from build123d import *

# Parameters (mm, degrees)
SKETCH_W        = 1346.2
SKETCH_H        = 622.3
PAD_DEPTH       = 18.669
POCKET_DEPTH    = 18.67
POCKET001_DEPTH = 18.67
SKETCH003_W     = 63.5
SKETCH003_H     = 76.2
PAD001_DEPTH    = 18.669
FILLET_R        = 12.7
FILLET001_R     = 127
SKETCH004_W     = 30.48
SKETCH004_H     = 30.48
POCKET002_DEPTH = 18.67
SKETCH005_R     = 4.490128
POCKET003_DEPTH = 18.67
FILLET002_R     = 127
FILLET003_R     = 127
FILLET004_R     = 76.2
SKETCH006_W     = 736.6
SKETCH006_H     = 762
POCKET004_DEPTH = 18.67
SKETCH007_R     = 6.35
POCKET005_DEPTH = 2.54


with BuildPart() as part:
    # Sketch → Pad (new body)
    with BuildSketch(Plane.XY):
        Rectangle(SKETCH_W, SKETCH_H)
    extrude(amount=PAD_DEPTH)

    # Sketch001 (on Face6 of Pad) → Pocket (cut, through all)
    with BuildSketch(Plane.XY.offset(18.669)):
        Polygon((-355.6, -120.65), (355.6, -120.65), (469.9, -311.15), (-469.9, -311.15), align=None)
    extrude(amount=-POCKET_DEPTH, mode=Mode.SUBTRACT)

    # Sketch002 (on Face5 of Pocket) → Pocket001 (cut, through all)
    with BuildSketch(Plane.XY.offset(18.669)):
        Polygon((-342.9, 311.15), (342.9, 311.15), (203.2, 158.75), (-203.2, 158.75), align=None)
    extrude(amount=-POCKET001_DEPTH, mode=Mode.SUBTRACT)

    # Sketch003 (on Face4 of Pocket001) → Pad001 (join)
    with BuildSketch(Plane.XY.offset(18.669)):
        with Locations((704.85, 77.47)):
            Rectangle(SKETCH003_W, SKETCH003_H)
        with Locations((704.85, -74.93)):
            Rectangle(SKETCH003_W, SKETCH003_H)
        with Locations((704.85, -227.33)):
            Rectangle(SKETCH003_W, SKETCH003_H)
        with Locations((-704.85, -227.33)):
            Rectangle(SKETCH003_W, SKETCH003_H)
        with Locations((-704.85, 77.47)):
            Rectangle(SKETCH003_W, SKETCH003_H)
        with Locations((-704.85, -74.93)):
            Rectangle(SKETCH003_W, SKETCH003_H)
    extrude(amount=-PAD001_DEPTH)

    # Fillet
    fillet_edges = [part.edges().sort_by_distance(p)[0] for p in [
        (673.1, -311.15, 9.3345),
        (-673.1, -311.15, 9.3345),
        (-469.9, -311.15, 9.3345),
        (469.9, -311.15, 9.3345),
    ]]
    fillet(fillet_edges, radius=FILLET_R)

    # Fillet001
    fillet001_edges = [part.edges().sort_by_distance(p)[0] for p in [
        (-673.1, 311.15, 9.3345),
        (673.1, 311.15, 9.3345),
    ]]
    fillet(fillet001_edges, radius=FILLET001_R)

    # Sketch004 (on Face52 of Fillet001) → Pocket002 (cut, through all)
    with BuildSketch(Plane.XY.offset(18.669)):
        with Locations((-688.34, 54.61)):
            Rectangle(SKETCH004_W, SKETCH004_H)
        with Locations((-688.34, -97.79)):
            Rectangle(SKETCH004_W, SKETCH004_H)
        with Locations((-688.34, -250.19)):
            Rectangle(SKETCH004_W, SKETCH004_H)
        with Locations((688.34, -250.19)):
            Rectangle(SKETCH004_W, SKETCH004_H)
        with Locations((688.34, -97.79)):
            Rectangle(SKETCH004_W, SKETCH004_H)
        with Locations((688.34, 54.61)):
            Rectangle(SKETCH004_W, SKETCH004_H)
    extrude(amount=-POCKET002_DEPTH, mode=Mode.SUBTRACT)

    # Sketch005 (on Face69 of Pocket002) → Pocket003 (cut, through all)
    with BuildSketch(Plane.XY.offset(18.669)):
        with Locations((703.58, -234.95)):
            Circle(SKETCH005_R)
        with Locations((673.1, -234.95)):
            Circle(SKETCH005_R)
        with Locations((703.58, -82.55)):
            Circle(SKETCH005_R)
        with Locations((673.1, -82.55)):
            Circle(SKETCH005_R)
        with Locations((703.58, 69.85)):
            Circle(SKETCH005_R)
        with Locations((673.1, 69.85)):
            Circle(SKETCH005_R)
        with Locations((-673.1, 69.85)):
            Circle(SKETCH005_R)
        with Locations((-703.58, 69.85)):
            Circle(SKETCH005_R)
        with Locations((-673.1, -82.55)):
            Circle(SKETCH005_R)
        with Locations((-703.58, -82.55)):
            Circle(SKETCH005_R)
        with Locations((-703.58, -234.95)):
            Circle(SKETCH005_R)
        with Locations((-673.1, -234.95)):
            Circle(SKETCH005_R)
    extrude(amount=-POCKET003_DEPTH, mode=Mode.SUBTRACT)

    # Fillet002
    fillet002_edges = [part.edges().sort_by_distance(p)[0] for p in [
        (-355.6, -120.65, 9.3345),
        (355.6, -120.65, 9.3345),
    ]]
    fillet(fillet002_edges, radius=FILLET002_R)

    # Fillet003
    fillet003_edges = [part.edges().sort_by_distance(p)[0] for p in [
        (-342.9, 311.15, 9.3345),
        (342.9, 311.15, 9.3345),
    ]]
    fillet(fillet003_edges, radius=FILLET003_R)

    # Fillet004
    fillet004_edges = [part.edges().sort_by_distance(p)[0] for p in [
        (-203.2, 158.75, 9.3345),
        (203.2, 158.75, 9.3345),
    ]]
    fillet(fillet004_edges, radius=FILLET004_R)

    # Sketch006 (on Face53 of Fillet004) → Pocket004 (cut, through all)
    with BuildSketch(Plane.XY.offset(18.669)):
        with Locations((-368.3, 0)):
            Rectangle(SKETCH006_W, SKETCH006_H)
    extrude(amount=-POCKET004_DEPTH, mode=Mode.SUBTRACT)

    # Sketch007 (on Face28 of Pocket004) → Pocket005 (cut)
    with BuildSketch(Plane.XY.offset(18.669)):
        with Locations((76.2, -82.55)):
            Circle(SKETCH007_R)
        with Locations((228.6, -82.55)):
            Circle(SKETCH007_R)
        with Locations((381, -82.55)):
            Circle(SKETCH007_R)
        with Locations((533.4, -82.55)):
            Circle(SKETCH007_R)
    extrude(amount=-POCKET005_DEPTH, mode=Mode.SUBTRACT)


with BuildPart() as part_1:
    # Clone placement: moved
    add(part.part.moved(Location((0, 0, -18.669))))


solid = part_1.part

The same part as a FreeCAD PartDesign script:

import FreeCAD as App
import Part
import Sketcher
Q = App.Units.Quantity


def edges_at(feature, points):
    """Names of the edges that pass closest to the given points."""
    edges = feature.Shape.Edges
    near = lambda p: min(range(len(edges)), key=lambda i: edges[i].distToShape(Part.Vertex(*p))[0])
    return sorted({f"Edge{near(p) + 1}" for p in points})


def add_polygon(sketch, points):
    """Adds a closed chain of lines whose ends are joined by coincident constraints."""
    first, n = sketch.GeometryCount, len(points)
    for a, b in zip(points, points[1:] + points[:1]):
        sketch.addGeometry(Part.LineSegment(App.Vector(*a, 0), App.Vector(*b, 0)), False)
    for i in range(n):
        sketch.addConstraint(Sketcher.Constraint("Coincident", first + i, 2, first + (i + 1) % n, 1))

doc = App.newDocument("Part")
body = doc.addObject("PartDesign::Body", "Body")

# Sketch on XY plane
sketch1 = body.newObject("Sketcher::SketchObject", "Sketch")
sketch1.AttachmentSupport = (doc.getObject("XY_Plane"), [""])
sketch1.MapMode = "FlatFace"
add_polygon(sketch1, [(-673, 311), (-673, -311), (673, -311), (673, 311)])  # lines 0-3
sketch1.addConstraint([
    Sketcher.Constraint("Vertical", 0),
    Sketcher.Constraint("Horizontal", 1),
    Sketcher.Constraint("Vertical", 2),
    Sketcher.Constraint("Horizontal", 3),
    Sketcher.Constraint("Symmetric", 0, 2, 2, 2, -1, 1),
    Sketcher.Constraint("DistanceX", 1, 1, 1, 2, Q("53 in")),
    Sketcher.Constraint("DistanceY", 0, 2, 0, 1, Q("24.5 in")),
])
pad1 = body.newObject("PartDesign::Pad", "Pad")
pad1.Profile = sketch1
pad1.Length = Q("0.735 in")

# Sketch on XY plane
sketch2 = body.newObject("Sketcher::SketchObject", "Sketch001")
sketch2.AttachmentSupport = (doc.getObject("XY_Plane"), [""])
sketch2.MapMode = "FlatFace"
sketch2.AttachmentOffset = App.Placement(App.Vector(0, 0, 0.735 * 25.4), App.Rotation())
add_polygon(sketch2, [(356, -121), (-356, -121), (-470, -311), (470, -311)])  # lines 0-3
sketch2.addConstraint([
    Sketcher.Constraint("Horizontal", 0),
    Sketcher.Constraint("Horizontal", 2),
    Sketcher.Constraint("Equal", 1, 3),
    Sketcher.Constraint("DistanceX", 0, 2, 0, 1, Q("28 in")),
    Sketcher.Constraint("DistanceX", 2, 1, 2, 2, Q("37 in")),
    Sketcher.Constraint("DistanceX", 0, 2, -1, 1, Q("14 in")),
    Sketcher.Constraint("DistanceY", 1, 2, 0, 2, Q("7.5 in")),
    Sketcher.Constraint("DistanceY", 0, 2, -1, 1, Q("4.75 in")),
])
pocket1 = body.newObject("PartDesign::Pocket", "Pocket")
pocket1.Profile = sketch2
pocket1.Type = "ThroughAll"

# Sketch on XY plane
sketch3 = body.newObject("Sketcher::SketchObject", "Sketch002")
sketch3.AttachmentSupport = (doc.getObject("XY_Plane"), [""])
sketch3.MapMode = "FlatFace"
sketch3.AttachmentOffset = App.Placement(App.Vector(0, 0, 0.735 * 25.4), App.Rotation())
add_polygon(sketch3, [(343, 311), (-343, 311), (-203, 159), (203, 159)])  # lines 0-3
sketch3.addConstraint([
    Sketcher.Constraint("Horizontal", 0),
    Sketcher.Constraint("Horizontal", 2),
    Sketcher.Constraint("Equal", 1, 3),
    Sketcher.Constraint("DistanceX", 0, 2, 0, 1, Q("27 in")),
    Sketcher.Constraint("DistanceX", 2, 1, 2, 2, Q("16 in")),
    Sketcher.Constraint("DistanceX", 1, 2, -1, 1, Q("8 in")),
    Sketcher.Constraint("DistanceY", 1, 2, 0, 2, Q("6 in")),
    Sketcher.Constraint("DistanceY", -1, 1, 0, 2, Q("12.25 in")),
])
pocket2 = body.newObject("PartDesign::Pocket", "Pocket001")
pocket2.Profile = sketch3
pocket2.Type = "ThroughAll"

# Sketch on XY plane
sketch4 = body.newObject("Sketcher::SketchObject", "Sketch003")
sketch4.AttachmentSupport = (doc.getObject("XY_Plane"), [""])
sketch4.MapMode = "FlatFace"
sketch4.AttachmentOffset = App.Placement(App.Vector(0, 0, 0.735 * 25.4), App.Rotation())
add_polygon(sketch4, [(673, 116), (673, 39), (737, 39), (737, 116)])  # lines 0-3
add_polygon(sketch4, [(673, -37), (673, -113), (737, -113), (737, -37)])  # lines 4-7
add_polygon(sketch4, [(673, -189), (673, -265), (737, -265), (737, -189)])  # lines 8-11
add_polygon(sketch4, [(-737, -189), (-737, -265), (-673, -265), (-673, -189)])  # lines 12-15
add_polygon(sketch4, [(-737, 116), (-737, 39), (-673, 39), (-673, 116)])  # lines 16-19
add_polygon(sketch4, [(-737, -37), (-737, -113), (-673, -113), (-673, -37)])  # lines 20-23
sketch4.addConstraint([
    Sketcher.Constraint("Vertical", 0),
    Sketcher.Constraint("Horizontal", 1),
    Sketcher.Constraint("Vertical", 2),
    Sketcher.Constraint("Horizontal", 3),
    Sketcher.Constraint("Vertical", 4),
    Sketcher.Constraint("Horizontal", 5),
    Sketcher.Constraint("Vertical", 6),
    Sketcher.Constraint("Horizontal", 7),
    Sketcher.Constraint("Vertical", 8),
    Sketcher.Constraint("Horizontal", 9),
    Sketcher.Constraint("Vertical", 10),
    Sketcher.Constraint("Horizontal", 11),
    Sketcher.Constraint("Vertical", 12),
    Sketcher.Constraint("Horizontal", 13),
    Sketcher.Constraint("Vertical", 14),
    Sketcher.Constraint("Horizontal", 15),
    Sketcher.Constraint("Vertical", 16),
    Sketcher.Constraint("Horizontal", 17),
    Sketcher.Constraint("Vertical", 18),
    Sketcher.Constraint("Horizontal", 19),
    Sketcher.Constraint("Vertical", 20),
    Sketcher.Constraint("Horizontal", 21),
    Sketcher.Constraint("Vertical", 22),
    Sketcher.Constraint("Horizontal", 23),
    Sketcher.Constraint("Symmetric", 9, 2, 12, 2, -2),
    Sketcher.Constraint("Symmetric", 11, 2, 14, 2, -2),
    Sketcher.Constraint("Symmetric", 1, 2, 16, 2, -2),
    Sketcher.Constraint("Symmetric", 3, 2, 18, 2, -2),
    Sketcher.Constraint("Symmetric", 5, 2, 20, 2, -2),
    Sketcher.Constraint("Symmetric", 7, 2, 22, 2, -2),
    Sketcher.Constraint("Vertical", 3, 2, 4, 2),
    Sketcher.Constraint("Vertical", 2, 2, 5, 2),
    Sketcher.Constraint("Vertical", 7, 2, 8, 2),
    Sketcher.Constraint("Vertical", 6, 2, 9, 2),
    Sketcher.Constraint("Equal", 2, 4),
    Sketcher.Constraint("Equal", 6, 8),
    Sketcher.Constraint("DistanceY", 0, 2, 0, 1, Q("3 in")),
    Sketcher.Constraint("DistanceX", 1, 1, 1, 2, Q("2.5 in")),
    Sketcher.Constraint("DistanceX", -1, 1, 1, 2, Q("29 in")),
    Sketcher.Constraint("DistanceY", 4, 2, 0, 2, Q("6 in")),
    Sketcher.Constraint("DistanceY", 8, 2, 4, 2, Q("6 in")),
    Sketcher.Constraint("DistanceY", -1, 1, 0, 2, Q("1.55 in")),
])
pad2 = body.newObject("PartDesign::Pad", "Pad001")
pad2.Profile = sketch4
pad2.Length = Q("0.735 in")
pad2.Reversed = True
doc.recompute()

fillet = body.newObject("PartDesign::Fillet", "Fillet")
fillet.Base = (pad2, edges_at(pad2, [
    (673.1, -311.15, 9.335),
    (-673.1, -311.15, 9.335),
    (-469.9, -311.15, 9.335),
    (469.9, -311.15, 9.335),
]))
fillet.Radius = Q("0.5 in")
doc.recompute()

fillet2 = body.newObject("PartDesign::Fillet", "Fillet001")
fillet2.Base = (fillet, edges_at(fillet, [(-673.1, 311.15, 9.335), (673.1, 311.15, 9.335)]))
fillet2.Radius = Q("5 in")

# Sketch on XY plane
sketch5 = body.newObject("Sketcher::SketchObject", "Sketch004")
sketch5.AttachmentSupport = (doc.getObject("XY_Plane"), [""])
sketch5.MapMode = "FlatFace"
sketch5.AttachmentOffset = App.Placement(App.Vector(0, 0, 0.735 * 25.4), App.Rotation())
add_polygon(sketch5, [(-704, 70), (-704, 39), (-673, 39), (-673, 70)])  # lines 0-3
add_polygon(sketch5, [(-704, -83), (-704, -113), (-673, -113), (-673, -83)])  # lines 4-7
add_polygon(sketch5, [(-704, -235), (-704, -265), (-673, -265), (-673, -235)])  # lines 8-11
add_polygon(sketch5, [(673, -235), (673, -265), (704, -265), (704, -235)])  # lines 12-15
add_polygon(sketch5, [(673, -83), (673, -113), (704, -113), (704, -83)])  # lines 16-19
add_polygon(sketch5, [(673, 70), (673, 39), (704, 39), (704, 70)])  # lines 20-23
sketch5.addConstraint([
    Sketcher.Constraint("Vertical", 0),
    Sketcher.Constraint("Horizontal", 1),
    Sketcher.Constraint("Vertical", 2),
    Sketcher.Constraint("Horizontal", 3),
    Sketcher.Constraint("Vertical", 4),
    Sketcher.Constraint("Horizontal", 5),
    Sketcher.Constraint("Vertical", 6),
    Sketcher.Constraint("Horizontal", 7),
    Sketcher.Constraint("Vertical", 8),
    Sketcher.Constraint("Horizontal", 9),
    Sketcher.Constraint("Vertical", 10),
    Sketcher.Constraint("Horizontal", 11),
    Sketcher.Constraint("Vertical", 12),
    Sketcher.Constraint("Horizontal", 13),
    Sketcher.Constraint("Vertical", 14),
    Sketcher.Constraint("Horizontal", 15),
    Sketcher.Constraint("Vertical", 16),
    Sketcher.Constraint("Horizontal", 17),
    Sketcher.Constraint("Vertical", 18),
    Sketcher.Constraint("Horizontal", 19),
    Sketcher.Constraint("Vertical", 20),
    Sketcher.Constraint("Horizontal", 21),
    Sketcher.Constraint("Vertical", 22),
    Sketcher.Constraint("Horizontal", 23),
    Sketcher.Constraint("Symmetric", 9, 2, 12, 2, -2),
    Sketcher.Constraint("Symmetric", 11, 2, 14, 2, -2),
    Sketcher.Constraint("Symmetric", 5, 2, 16, 2, -2),
    Sketcher.Constraint("Symmetric", 7, 2, 18, 2, -2),
    Sketcher.Constraint("Symmetric", 1, 2, 20, 2, -2),
    Sketcher.Constraint("Symmetric", 3, 2, 22, 2, -2),
    Sketcher.Constraint("Vertical", 3, 2, 4, 2),
    Sketcher.Constraint("Vertical", 2, 2, 5, 2),
    Sketcher.Constraint("Vertical", 7, 2, 8, 2),
    Sketcher.Constraint("Vertical", 6, 2, 9, 2),
    Sketcher.Constraint("Equal", 23, 0),
    Sketcher.Constraint("Equal", 2, 4),
    Sketcher.Constraint("Equal", 6, 8),
    Sketcher.Constraint("DistanceX", 1, 1, 1, 2, Q("1.2 in")),
    Sketcher.Constraint("DistanceY", 4, 2, 0, 2, Q("6 in")),
    Sketcher.Constraint("DistanceY", 8, 2, 4, 2, Q("6 in")),
    Sketcher.Constraint("DistanceX", 9, 2, 12, 2, Q("53 in")),
    Sketcher.Constraint("DistanceY", -1, 1, 0, 2, Q("1.55 in")),
])
pocket3 = body.newObject("PartDesign::Pocket", "Pocket002")
pocket3.Profile = sketch5
pocket3.Type = "ThroughAll"

# Sketch on XY plane
sketch6 = body.newObject("Sketcher::SketchObject", "Sketch005")
sketch6.AttachmentSupport = (doc.getObject("XY_Plane"), [""])
sketch6.MapMode = "FlatFace"
sketch6.AttachmentOffset = App.Placement(App.Vector(0, 0, 0.735 * 25.4), App.Rotation())
sketch6.addGeometry([
    Part.Circle(App.Vector(703.6, -234.9, 0), App.Vector(0, 0, 1), 4.5),  # 0
    Part.Circle(App.Vector(673.1, -234.9, 0), App.Vector(0, 0, 1), 4.5),  # 1
    Part.Circle(App.Vector(703.6, -82.5, 0), App.Vector(0, 0, 1), 4.5),  # 2
    Part.Circle(App.Vector(673.1, -82.5, 0), App.Vector(0, 0, 1), 4.5),  # 3
    Part.Circle(App.Vector(703.6, 69.8, 0), App.Vector(0, 0, 1), 4.5),  # 4
    Part.Circle(App.Vector(673.1, 69.8, 0), App.Vector(0, 0, 1), 4.5),  # 5
    Part.Circle(App.Vector(-673.1, 69.8, 0), App.Vector(0, 0, 1), 4.5),  # 6
    Part.Circle(App.Vector(-703.6, 69.8, 0), App.Vector(0, 0, 1), 4.5),  # 7
    Part.Circle(App.Vector(-673.1, -82.5, 0), App.Vector(0, 0, 1), 4.5),  # 8
    Part.Circle(App.Vector(-703.6, -82.5, 0), App.Vector(0, 0, 1), 4.5),  # 9
    Part.Circle(App.Vector(-703.6, -234.9, 0), App.Vector(0, 0, 1), 4.5),  # 10
    Part.Circle(App.Vector(-673.1, -234.9, 0), App.Vector(0, 0, 1), 4.5),  # 11
], False)
sketch6.addConstraint([
    Sketcher.Constraint("Equal", 0, 1),
    Sketcher.Constraint("Equal", 1, 2),
    Sketcher.Constraint("Equal", 2, 3),
    Sketcher.Constraint("Equal", 3, 4),
    Sketcher.Constraint("Equal", 4, 5),
    Sketcher.Constraint("Equal", 5, 6),
    Sketcher.Constraint("Equal", 6, 7),
    Sketcher.Constraint("Equal", 7, 8),
    Sketcher.Constraint("Equal", 8, 9),
    Sketcher.Constraint("Equal", 9, 10),
    Sketcher.Constraint("Equal", 10, 11),
    Sketcher.Constraint("Symmetric", 5, 3, 6, 3, -2),
    Sketcher.Constraint("Symmetric", 4, 3, 7, 3, -2),
    Sketcher.Constraint("Symmetric", 3, 3, 8, 3, -2),
    Sketcher.Constraint("Symmetric", 2, 3, 9, 3, -2),
    Sketcher.Constraint("Symmetric", 0, 3, 10, 3, -2),
    Sketcher.Constraint("Symmetric", 1, 3, 11, 3, -2),
    Sketcher.Constraint("Horizontal", 0, 3, 1, 3),
    Sketcher.Constraint("Horizontal", 2, 3, 3, 3),
    Sketcher.Constraint("Horizontal", 4, 3, 5, 3),
    Sketcher.Constraint("Vertical", 0, 3, 2, 3),
    Sketcher.Constraint("Vertical", 1, 3, 3, 3),
    Sketcher.Constraint("Vertical", 2, 3, 4, 3),
    Sketcher.Constraint("Vertical", 3, 3, 5, 3),
    Sketcher.Constraint("DistanceY", 0, 3, 2, 3, Q("6 in")),
    Sketcher.Constraint("DistanceY", 2, 3, 4, 3, Q("6 in")),
    Sketcher.Constraint("DistanceX", 6, 3, 5, 3, Q("53 in")),
    Sketcher.Constraint("DistanceX", -1, 1, 0, 3, Q("27.7 in")),
    Sketcher.Constraint("DistanceY", 0, 3, -1, 1, Q("9.25 in")),
    Sketcher.Constraint("Diameter", 0, Q("8.980256 mm")),
])
pocket4 = body.newObject("PartDesign::Pocket", "Pocket003")
pocket4.Profile = sketch6
pocket4.Type = "ThroughAll"
doc.recompute()

fillet3 = body.newObject("PartDesign::Fillet", "Fillet002")
fillet3.Base = (pocket4, edges_at(pocket4, [(-355.6, -120.65, 9.335), (355.6, -120.65, 9.335)]))
fillet3.Radius = Q("5 in")
doc.recompute()

fillet4 = body.newObject("PartDesign::Fillet", "Fillet003")
fillet4.Base = (fillet3, edges_at(fillet3, [(-342.9, 311.15, 9.335), (342.9, 311.15, 9.335)]))
fillet4.Radius = Q("5 in")
doc.recompute()

fillet5 = body.newObject("PartDesign::Fillet", "Fillet004")
fillet5.Base = (fillet4, edges_at(fillet4, [(-203.2, 158.75, 9.335), (203.2, 158.75, 9.335)]))
fillet5.Radius = Q("3 in")

# Sketch on XY plane
sketch7 = body.newObject("Sketcher::SketchObject", "Sketch006")
sketch7.AttachmentSupport = (doc.getObject("XY_Plane"), [""])
sketch7.MapMode = "FlatFace"
sketch7.AttachmentOffset = App.Placement(App.Vector(0, 0, 0.735 * 25.4), App.Rotation())
add_polygon(sketch7, [(-737, 381), (-737, -381), (0, -381), (0, 381)])  # lines 0-3
sketch7.addConstraint([
    Sketcher.Constraint("Vertical", 0),
    Sketcher.Constraint("Horizontal", 1),
    Sketcher.Constraint("Vertical", 2),
    Sketcher.Constraint("Horizontal", 3),
    Sketcher.Constraint("Symmetric", 1, 2, 2, 2, -1, 1),
    Sketcher.Constraint("DistanceX", 1, 1, 1, 2, Q("29 in")),
    Sketcher.Constraint("DistanceY", 0, 2, 0, 1, Q("30 in")),
])
pocket5 = body.newObject("PartDesign::Pocket", "Pocket004")
pocket5.Profile = sketch7
pocket5.Type = "ThroughAll"

# Sketch on XY plane
sketch8 = body.newObject("Sketcher::SketchObject", "Sketch007")
sketch8.AttachmentSupport = (doc.getObject("XY_Plane"), [""])
sketch8.MapMode = "FlatFace"
sketch8.AttachmentOffset = App.Placement(App.Vector(0, 0, 0.735 * 25.4), App.Rotation())
sketch8.addGeometry([
    Part.Circle(App.Vector(76, -83, 0), App.Vector(0, 0, 1), 6),
    Part.Circle(App.Vector(229, -83, 0), App.Vector(0, 0, 1), 6),
    Part.Circle(App.Vector(381, -83, 0), App.Vector(0, 0, 1), 6),
    Part.Circle(App.Vector(533, -83, 0), App.Vector(0, 0, 1), 6),
], False)
sketch8.addConstraint([
    Sketcher.Constraint("Equal", 0, 1),
    Sketcher.Constraint("Equal", 1, 2),
    Sketcher.Constraint("Equal", 2, 3),
    Sketcher.Constraint("Horizontal", 0, 3, 1, 3),
    Sketcher.Constraint("Horizontal", 1, 3, 2, 3),
    Sketcher.Constraint("Horizontal", 2, 3, 3, 3),
    Sketcher.Constraint("Diameter", 0, Q("0.5 in")),
    Sketcher.Constraint("DistanceX", -1, 1, 0, 3, Q("3 in")),
    Sketcher.Constraint("DistanceX", -1, 1, 1, 3, Q("9 in")),
    Sketcher.Constraint("DistanceX", -1, 1, 2, 3, Q("15 in")),
    Sketcher.Constraint("DistanceX", -1, 1, 3, 3, Q("21 in")),
    Sketcher.Constraint("DistanceY", 0, 3, -1, 1, Q("3.25 in")),
])
pocket6 = body.newObject("PartDesign::Pocket", "Pocket005")
pocket6.Profile = sketch8
pocket6.Length = Q("0.1 in")
body2 = doc.addObject("PartDesign::Body", "Body001")
doc.recompute()

body.Placement = App.Placement(App.Vector(0, 0, -18.669), App.Rotation(App.Vector(0, 0, 1), 0))
boolean = body2.newObject("PartDesign::Boolean", "Boolean")
boolean.Type = "Fuse"
boolean.addObjects([body])

doc.recompute()
